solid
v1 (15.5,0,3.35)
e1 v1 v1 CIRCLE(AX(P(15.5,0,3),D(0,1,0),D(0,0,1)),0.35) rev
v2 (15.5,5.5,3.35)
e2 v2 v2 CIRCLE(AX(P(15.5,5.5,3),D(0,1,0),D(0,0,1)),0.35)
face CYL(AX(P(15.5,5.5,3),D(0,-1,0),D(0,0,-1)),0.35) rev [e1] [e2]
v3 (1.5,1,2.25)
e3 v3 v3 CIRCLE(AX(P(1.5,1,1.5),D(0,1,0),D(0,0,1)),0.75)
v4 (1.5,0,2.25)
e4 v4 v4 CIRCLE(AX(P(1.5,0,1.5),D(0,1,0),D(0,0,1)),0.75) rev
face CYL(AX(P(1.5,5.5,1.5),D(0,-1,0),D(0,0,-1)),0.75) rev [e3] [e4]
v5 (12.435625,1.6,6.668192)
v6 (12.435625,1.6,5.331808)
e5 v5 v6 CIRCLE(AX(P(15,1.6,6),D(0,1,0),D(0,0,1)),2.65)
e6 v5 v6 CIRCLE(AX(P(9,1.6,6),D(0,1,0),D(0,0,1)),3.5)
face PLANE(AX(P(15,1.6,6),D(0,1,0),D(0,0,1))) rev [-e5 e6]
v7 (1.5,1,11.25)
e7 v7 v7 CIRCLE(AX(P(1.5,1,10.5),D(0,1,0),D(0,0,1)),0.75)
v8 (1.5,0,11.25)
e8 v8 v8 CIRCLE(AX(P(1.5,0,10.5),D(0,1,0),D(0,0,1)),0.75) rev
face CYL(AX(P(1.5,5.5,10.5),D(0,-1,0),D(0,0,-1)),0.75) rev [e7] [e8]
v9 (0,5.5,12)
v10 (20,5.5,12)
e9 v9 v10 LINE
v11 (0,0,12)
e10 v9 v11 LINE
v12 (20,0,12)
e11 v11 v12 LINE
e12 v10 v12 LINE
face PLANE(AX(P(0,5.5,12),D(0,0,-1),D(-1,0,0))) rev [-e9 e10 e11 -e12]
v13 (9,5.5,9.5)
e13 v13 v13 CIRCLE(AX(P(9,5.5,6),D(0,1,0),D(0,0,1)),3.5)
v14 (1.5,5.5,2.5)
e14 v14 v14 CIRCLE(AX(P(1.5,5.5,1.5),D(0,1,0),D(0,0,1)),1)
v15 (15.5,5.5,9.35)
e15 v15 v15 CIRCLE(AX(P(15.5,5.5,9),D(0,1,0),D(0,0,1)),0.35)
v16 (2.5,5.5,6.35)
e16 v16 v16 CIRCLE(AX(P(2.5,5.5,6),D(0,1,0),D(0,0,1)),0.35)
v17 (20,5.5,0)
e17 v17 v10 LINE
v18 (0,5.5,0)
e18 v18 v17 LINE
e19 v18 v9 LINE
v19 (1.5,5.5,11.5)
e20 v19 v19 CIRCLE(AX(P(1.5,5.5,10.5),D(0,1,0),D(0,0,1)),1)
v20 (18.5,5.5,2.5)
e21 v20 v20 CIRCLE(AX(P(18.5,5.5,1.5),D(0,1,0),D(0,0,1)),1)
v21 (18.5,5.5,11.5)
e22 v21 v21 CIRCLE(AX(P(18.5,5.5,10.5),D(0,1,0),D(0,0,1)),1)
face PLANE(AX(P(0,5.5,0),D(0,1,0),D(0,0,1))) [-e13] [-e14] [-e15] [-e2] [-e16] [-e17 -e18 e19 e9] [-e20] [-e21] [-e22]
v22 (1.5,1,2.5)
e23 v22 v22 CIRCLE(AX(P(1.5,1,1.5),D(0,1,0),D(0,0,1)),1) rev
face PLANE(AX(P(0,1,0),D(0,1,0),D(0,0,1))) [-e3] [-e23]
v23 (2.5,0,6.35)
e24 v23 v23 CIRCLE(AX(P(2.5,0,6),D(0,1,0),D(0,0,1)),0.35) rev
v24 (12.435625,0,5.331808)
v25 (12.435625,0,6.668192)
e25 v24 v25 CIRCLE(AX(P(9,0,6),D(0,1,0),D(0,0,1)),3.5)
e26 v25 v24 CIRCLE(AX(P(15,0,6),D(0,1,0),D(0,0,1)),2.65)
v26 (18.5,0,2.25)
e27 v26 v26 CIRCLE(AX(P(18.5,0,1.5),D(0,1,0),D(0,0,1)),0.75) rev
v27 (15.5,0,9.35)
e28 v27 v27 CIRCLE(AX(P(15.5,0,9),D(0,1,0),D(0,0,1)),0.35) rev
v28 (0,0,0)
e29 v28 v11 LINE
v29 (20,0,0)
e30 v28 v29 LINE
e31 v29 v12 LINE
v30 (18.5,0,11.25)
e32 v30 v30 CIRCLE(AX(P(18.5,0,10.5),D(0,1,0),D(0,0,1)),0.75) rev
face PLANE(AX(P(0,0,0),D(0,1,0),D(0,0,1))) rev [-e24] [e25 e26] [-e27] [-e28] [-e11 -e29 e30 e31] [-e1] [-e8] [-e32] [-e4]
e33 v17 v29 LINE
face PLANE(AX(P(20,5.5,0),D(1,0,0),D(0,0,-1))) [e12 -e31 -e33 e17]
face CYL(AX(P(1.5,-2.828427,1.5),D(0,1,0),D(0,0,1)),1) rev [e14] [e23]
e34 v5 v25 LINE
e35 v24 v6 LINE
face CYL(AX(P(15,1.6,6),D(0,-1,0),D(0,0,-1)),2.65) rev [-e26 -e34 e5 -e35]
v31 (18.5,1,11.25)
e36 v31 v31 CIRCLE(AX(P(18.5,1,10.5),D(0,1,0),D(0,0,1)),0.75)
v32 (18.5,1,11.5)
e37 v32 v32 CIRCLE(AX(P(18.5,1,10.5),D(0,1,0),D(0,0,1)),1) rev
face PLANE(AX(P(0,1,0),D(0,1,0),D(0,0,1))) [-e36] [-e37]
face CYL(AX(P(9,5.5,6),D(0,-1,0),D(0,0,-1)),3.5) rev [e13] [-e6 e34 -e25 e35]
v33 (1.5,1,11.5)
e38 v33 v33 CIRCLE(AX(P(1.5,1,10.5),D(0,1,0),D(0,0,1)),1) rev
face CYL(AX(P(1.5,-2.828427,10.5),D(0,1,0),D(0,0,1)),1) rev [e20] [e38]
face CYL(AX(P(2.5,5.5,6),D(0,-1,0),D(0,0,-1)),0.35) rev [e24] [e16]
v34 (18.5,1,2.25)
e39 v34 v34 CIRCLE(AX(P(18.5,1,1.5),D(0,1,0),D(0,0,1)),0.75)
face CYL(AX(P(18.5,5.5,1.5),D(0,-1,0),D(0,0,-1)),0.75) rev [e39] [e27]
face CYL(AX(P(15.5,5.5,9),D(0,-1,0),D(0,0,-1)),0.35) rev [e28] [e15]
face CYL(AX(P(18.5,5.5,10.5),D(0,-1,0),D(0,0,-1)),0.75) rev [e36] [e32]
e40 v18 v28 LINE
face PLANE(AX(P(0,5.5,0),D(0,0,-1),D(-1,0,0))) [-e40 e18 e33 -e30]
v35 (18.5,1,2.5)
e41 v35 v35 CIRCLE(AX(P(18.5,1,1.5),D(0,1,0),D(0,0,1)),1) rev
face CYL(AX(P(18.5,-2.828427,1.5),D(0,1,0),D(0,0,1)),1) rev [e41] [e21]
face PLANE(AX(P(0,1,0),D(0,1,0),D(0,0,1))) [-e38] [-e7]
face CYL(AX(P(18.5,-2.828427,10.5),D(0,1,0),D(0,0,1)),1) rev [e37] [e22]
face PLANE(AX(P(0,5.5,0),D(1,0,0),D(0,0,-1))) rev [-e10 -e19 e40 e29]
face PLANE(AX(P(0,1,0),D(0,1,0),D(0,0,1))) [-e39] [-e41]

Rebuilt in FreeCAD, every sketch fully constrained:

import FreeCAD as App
import Part
import Sketcher

V = App.Vector
Q = App.Units.Quantity

doc = App.newDocument("Part")
body = doc.addObject("PartDesign::Body", "Body")

sketch1 = body.newObject("Sketcher::SketchObject", "Sketch")
sketch1.AttachmentSupport = (doc.getObject("XZ_Plane"), [""])
sketch1.MapMode = "FlatFace"
sketch1.addGeometry(Part.LineSegment(V(0, 0, 0), V(0, 12, 0)), False)
sketch1.addGeometry(Part.LineSegment(V(0, 12, 0), V(20, 12, 0)), False)
sketch1.addGeometry(Part.LineSegment(V(20, 12, 0), V(20, 0, 0)), False)
sketch1.addGeometry(Part.LineSegment(V(20, 0, 0), V(0, 0, 0)), False)
sketch1.addGeometry(Part.Circle(V(9, 6, 0), V(0, 0, 1), 3.5), False)
sketch1.addConstraint(Sketcher.Constraint("Coincident", 0, 2, 1, 1))
sketch1.addConstraint(Sketcher.Constraint("Coincident", 1, 2, 2, 1))
sketch1.addConstraint(Sketcher.Constraint("Coincident", 2, 2, 3, 1))
sketch1.addConstraint(Sketcher.Constraint("Coincident", 3, 2, 0, 1))
sketch1.addConstraint(Sketcher.Constraint("Vertical", 0))
sketch1.addConstraint(Sketcher.Constraint("Horizontal", 1))
sketch1.addConstraint(Sketcher.Constraint("Vertical", 2))
sketch1.addConstraint(Sketcher.Constraint("Horizontal", 3))
sketch1.addConstraint(Sketcher.Constraint("Coincident", 3, 2, -1, 1))
sketch1.addConstraint(Sketcher.Constraint("Diameter", 4, Q("7 mm")))
sketch1.addConstraint(Sketcher.Constraint("DistanceX", 1, 1, 1, 2, Q("20 mm")))
sketch1.addConstraint(Sketcher.Constraint("DistanceY", 0, 1, 0, 2, Q("12 mm")))
sketch1.addConstraint(Sketcher.Constraint("DistanceX", -1, 1, 4, 3, Q("9 mm")))
sketch1.addConstraint(Sketcher.Constraint("DistanceY", -1, 1, 4, 3, Q("6 mm")))
pad1 = body.newObject("PartDesign::Pad", "Pad")
pad1.Profile = sketch1
pad1.Length = 5.5
pad1.Reversed = True

sketch2 = body.newObject("Sketcher::SketchObject", "Sketch001")
sketch2.AttachmentSupport = (doc.getObject("XZ_Plane"), [""])
sketch2.MapMode = "FlatFace"
sketch2.addGeometry(Part.Circle(V(15, 6, 0), V(0, 0, 1), 2.65), False)
sketch2.addConstraint(Sketcher.Constraint("Diameter", 0, Q("5.3 mm")))
sketch2.addConstraint(Sketcher.Constraint("DistanceX", -1, 1, 0, 3, Q("15 mm")))
sketch2.addConstraint(Sketcher.Constraint("DistanceY", -1, 1, 0, 3, Q("6 mm")))
pocket1 = body.newObject("PartDesign::Pocket", "Pocket")
pocket1.Profile = sketch2
pocket1.Length = 1.6

sketch3 = body.newObject("Sketcher::SketchObject", "Sketch002")
sketch3.AttachmentSupport = (doc.getObject("XZ_Plane"), [""])
sketch3.MapMode = "FlatFace"
sketch3.addGeometry(Part.Circle(V(1.5, 1.5, 0), V(0, 0, 1), 0.75), False)
sketch3.addGeometry(Part.Circle(V(18.5, 1.5, 0), V(0, 0, 1), 0.75), False)
sketch3.addGeometry(Part.Circle(V(1.5, 10.5, 0), V(0, 0, 1), 0.75), False)
sketch3.addGeometry(Part.Circle(V(18.5, 10.5, 0), V(0, 0, 1), 0.75), False)
sketch3.addGeometry(Part.Circle(V(15.5, 3, 0), V(0, 0, 1), 0.35), False)
sketch3.addGeometry(Part.Circle(V(2.5, 6, 0), V(0, 0, 1), 0.35), False)
sketch3.addGeometry(Part.Circle(V(15.5, 9, 0), V(0, 0, 1), 0.35), False)
sketch3.addConstraint(Sketcher.Constraint("Equal", 0, 1))
sketch3.addConstraint(Sketcher.Constraint("Equal", 1, 2))
sketch3.addConstraint(Sketcher.Constraint("Equal", 2, 3))
sketch3.addConstraint(Sketcher.Constraint("Equal", 4, 5))
sketch3.addConstraint(Sketcher.Constraint("Equal", 5, 6))
sketch3.addConstraint(Sketcher.Constraint("Horizontal", 0, 3, 1, 3))
sketch3.addConstraint(Sketcher.Constraint("Horizontal", 2, 3, 3, 3))
sketch3.addConstraint(Sketcher.Constraint("Vertical", 0, 3, 2, 3))
sketch3.addConstraint(Sketcher.Constraint("Vertical", 1, 3, 3, 3))
sketch3.addConstraint(Sketcher.Constraint("Vertical", 4, 3, 6, 3))
sketch3.addConstraint(Sketcher.Constraint("Diameter", 0, Q("1.5 mm")))
sketch3.addConstraint(Sketcher.Constraint("Diameter", 4, Q("0.7 mm")))
sketch3.addConstraint(Sketcher.Constraint("DistanceY", -1, 1, 4, 3, Q("3 mm")))
sketch3.addConstraint(Sketcher.Constraint("DistanceY", -1, 1, 5, 3, Q("6 mm")))
sketch3.addConstraint(Sketcher.Constraint("DistanceY", -1, 1, 6, 3, Q("9 mm")))
sketch3.addConstraint(Sketcher.Constraint("DistanceX", 0, 3, 1, 3, Q("17 mm")))
sketch3.addConstraint(Sketcher.Constraint("DistanceY", 0, 3, 2, 3, Q("9 mm")))
sketch3.addConstraint(Sketcher.Constraint("DistanceX", 4, 3, 1, 3, Q("3 mm")))
sketch3.addConstraint(Sketcher.Constraint("DistanceX", 0, 3, 5, 3, Q("1 mm")))
sketch3.addConstraint(Sketcher.Constraint("DistanceX", -1, 1, 0, 3, Q("1.5 mm")))
sketch3.addConstraint(Sketcher.Constraint("DistanceY", -1, 1, 0, 3, Q("1.5 mm")))
pocket2 = body.newObject("PartDesign::Pocket", "Pocket001")
pocket2.Profile = sketch3
pocket2.Type = "ThroughAll"
pocket2.Midplane = True

sketch4 = body.newObject("Sketcher::SketchObject", "Sketch003")
sketch4.AttachmentSupport = (doc.getObject("XZ_Plane"), [""])
sketch4.MapMode = "FlatFace"
sketch4.AttachmentOffset = App.Placement(V(0, 0, -5.5), App.Rotation())
sketch4.addGeometry(Part.Circle(V(1.5, 1.5, 0), V(0, 0, 1), 1), False)
sketch4.addGeometry(Part.Circle(V(18.5, 1.5, 0), V(0, 0, 1), 1), False)
sketch4.addGeometry(Part.Circle(V(18.5, 10.5, 0), V(0, 0, 1), 1), False)
sketch4.addGeometry(Part.Circle(V(1.5, 10.5, 0), V(0, 0, 1), 1), False)
sketch4.addConstraint(Sketcher.Constraint("Equal", 0, 1))
sketch4.addConstraint(Sketcher.Constraint("Equal", 1, 2))
sketch4.addConstraint(Sketcher.Constraint("Equal", 2, 3))
sketch4.addConstraint(Sketcher.Constraint("Horizontal", 0, 3, 1, 3))
sketch4.addConstraint(Sketcher.Constraint("Horizontal", 2, 3, 3, 3))
sketch4.addConstraint(Sketcher.Constraint("Vertical", 1, 3, 2, 3))
sketch4.addConstraint(Sketcher.Constraint("Vertical", 0, 3, 3, 3))
sketch4.addConstraint(Sketcher.Constraint("Diameter", 0, Q("2 mm")))
sketch4.addConstraint(Sketcher.Constraint("DistanceX", 0, 3, 1, 3, Q("17 mm")))
sketch4.addConstraint(Sketcher.Constraint("DistanceY", 1, 3, 2, 3, Q("9 mm")))
sketch4.addConstraint(Sketcher.Constraint("DistanceX", -1, 1, 0, 3, Q("1.5 mm")))
sketch4.addConstraint(Sketcher.Constraint("DistanceY", -1, 1, 0, 3, Q("1.5 mm")))
pocket3 = body.newObject("PartDesign::Pocket", "Pocket002")
pocket3.Profile = sketch4
pocket3.Length = 4.5
pocket3.Reversed = True

doc.recompute()
